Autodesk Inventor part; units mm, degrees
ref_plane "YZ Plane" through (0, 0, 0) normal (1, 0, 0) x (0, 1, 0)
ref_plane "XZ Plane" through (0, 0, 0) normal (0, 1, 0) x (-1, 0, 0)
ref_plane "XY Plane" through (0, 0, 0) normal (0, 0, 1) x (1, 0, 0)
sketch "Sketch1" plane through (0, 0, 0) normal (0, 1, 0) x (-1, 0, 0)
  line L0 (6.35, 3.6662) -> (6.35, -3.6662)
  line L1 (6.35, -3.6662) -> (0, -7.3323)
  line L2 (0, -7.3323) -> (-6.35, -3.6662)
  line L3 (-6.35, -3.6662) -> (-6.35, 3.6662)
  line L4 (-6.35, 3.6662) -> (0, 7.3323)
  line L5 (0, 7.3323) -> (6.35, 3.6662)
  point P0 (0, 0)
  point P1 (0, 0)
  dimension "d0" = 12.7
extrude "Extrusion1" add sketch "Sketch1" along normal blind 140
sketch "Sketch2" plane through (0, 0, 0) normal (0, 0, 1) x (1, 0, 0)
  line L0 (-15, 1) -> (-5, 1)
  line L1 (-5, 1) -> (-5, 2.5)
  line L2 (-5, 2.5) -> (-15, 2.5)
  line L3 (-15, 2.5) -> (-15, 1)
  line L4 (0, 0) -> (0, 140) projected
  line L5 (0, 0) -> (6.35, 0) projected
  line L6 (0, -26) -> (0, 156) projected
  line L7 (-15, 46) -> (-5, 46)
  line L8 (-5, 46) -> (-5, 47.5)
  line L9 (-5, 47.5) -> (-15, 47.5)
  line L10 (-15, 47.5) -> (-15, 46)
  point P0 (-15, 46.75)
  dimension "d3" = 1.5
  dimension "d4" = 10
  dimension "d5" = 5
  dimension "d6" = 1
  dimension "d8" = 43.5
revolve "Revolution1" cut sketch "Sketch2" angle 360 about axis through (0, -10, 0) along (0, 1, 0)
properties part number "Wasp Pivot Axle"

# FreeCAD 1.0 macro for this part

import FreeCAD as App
import Part
import Sketcher
Q = App.Units.Quantity


def add_polygon(sketch, points):
    """Adds a closed chain of lines whose ends are joined by coincident constraints."""
    first, n = sketch.GeometryCount, len(points)
    for a, b in zip(points, points[1:] + points[:1]):
        sketch.addGeometry(Part.LineSegment(App.Vector(*a, 0), App.Vector(*b, 0)), False)
    for i in range(n):
        sketch.addConstraint(Sketcher.Constraint("Coincident", first + i, 2, first + (i + 1) % n, 1))

doc = App.newDocument("Part")
body = doc.addObject("PartDesign::Body", "Body")

# Sketch on XZ plane
sketch1 = body.newObject("Sketcher::SketchObject", "Sketch")
sketch1.AttachmentSupport = (doc.getObject("XZ_Plane"), [""])
sketch1.MapMode = "FlatFace"
add_polygon(sketch1, [(-6.35, -3.6662), (-6.35, 3.6662), (0, 7.3323), (6.35, 3.6662), (6.35, -3.6662), (0, -7.3323)])  # lines 0-5
sketch1.addConstraint([
    Sketcher.Constraint("Vertical", 0),
    Sketcher.Constraint("Vertical", 3),
    Sketcher.Constraint("Symmetric", 0, 2, 3, 2, -1, 1),
    Sketcher.Constraint("Symmetric", 1, 2, 4, 2, -1, 1),
    Sketcher.Constraint("PointOnObject", 1, 2, -2),
    Sketcher.Constraint("Parallel", 2, 5),
    Sketcher.Constraint("Horizontal", 0, 2, 2, 2),
    Sketcher.Constraint("DistanceX", 0, 2, 2, 2, Q("12.7 mm")),
    Sketcher.Constraint("Angle", 1, Q("29.9995 deg")),
    Sketcher.Constraint("DistanceY", 0, 1, 0, 2, Q("7.3324 mm")),
])
pad1 = body.newObject("PartDesign::Pad", "Pad")
pad1.Profile = sketch1
pad1.Length = 140
pad1.Reversed = True

# Sketch on XY plane
sketch2 = body.newObject("Sketcher::SketchObject", "Sketch001")
sketch2.AttachmentSupport = (doc.getObject("XY_Plane"), [""])
sketch2.MapMode = "FlatFace"
add_polygon(sketch2, [(-15, 2.5), (-15, 1), (-5, 1), (-5, 2.5)])  # lines 0-3
add_polygon(sketch2, [(-15, 47.5), (-15, 46), (-5, 46), (-5, 47.5)])  # lines 4-7
sketch2.addConstraint([
    Sketcher.Constraint("Vertical", 0),
    Sketcher.Constraint("Horizontal", 1),
    Sketcher.Constraint("Vertical", 2),
    Sketcher.Constraint("Horizontal", 3),
    Sketcher.Constraint("Vertical", 4),
    Sketcher.Constraint("Horizontal", 5),
    Sketcher.Constraint("Vertical", 6),
    Sketcher.Constraint("Horizontal", 7),
    Sketcher.Constraint("Vertical", 3, 2, 4, 2),
    Sketcher.Constraint("Vertical", 2, 2, 5, 2),
    Sketcher.Constraint("Equal", 2, 4),
    Sketcher.Constraint("DistanceX", 1, 1, 1, 2, Q("10 mm")),
    Sketcher.Constraint("DistanceY", 0, 2, 0, 1, Q("1.5 mm")),
    Sketcher.Constraint("DistanceY", -1, 1, 0, 2, Q("1 mm")),
    Sketcher.Constraint("DistanceX", 1, 2, -1, 1, Q("5 mm")),
    Sketcher.Constraint("DistanceY", 3, 2, 4, 2, Q("43.5 mm")),
])
groove = body.newObject("PartDesign::Groove", "Groove")
groove.Profile = sketch2
groove.ReferenceAxis = (sketch2, ["V_Axis"])
groove.Angle = 360

doc.recompute()
